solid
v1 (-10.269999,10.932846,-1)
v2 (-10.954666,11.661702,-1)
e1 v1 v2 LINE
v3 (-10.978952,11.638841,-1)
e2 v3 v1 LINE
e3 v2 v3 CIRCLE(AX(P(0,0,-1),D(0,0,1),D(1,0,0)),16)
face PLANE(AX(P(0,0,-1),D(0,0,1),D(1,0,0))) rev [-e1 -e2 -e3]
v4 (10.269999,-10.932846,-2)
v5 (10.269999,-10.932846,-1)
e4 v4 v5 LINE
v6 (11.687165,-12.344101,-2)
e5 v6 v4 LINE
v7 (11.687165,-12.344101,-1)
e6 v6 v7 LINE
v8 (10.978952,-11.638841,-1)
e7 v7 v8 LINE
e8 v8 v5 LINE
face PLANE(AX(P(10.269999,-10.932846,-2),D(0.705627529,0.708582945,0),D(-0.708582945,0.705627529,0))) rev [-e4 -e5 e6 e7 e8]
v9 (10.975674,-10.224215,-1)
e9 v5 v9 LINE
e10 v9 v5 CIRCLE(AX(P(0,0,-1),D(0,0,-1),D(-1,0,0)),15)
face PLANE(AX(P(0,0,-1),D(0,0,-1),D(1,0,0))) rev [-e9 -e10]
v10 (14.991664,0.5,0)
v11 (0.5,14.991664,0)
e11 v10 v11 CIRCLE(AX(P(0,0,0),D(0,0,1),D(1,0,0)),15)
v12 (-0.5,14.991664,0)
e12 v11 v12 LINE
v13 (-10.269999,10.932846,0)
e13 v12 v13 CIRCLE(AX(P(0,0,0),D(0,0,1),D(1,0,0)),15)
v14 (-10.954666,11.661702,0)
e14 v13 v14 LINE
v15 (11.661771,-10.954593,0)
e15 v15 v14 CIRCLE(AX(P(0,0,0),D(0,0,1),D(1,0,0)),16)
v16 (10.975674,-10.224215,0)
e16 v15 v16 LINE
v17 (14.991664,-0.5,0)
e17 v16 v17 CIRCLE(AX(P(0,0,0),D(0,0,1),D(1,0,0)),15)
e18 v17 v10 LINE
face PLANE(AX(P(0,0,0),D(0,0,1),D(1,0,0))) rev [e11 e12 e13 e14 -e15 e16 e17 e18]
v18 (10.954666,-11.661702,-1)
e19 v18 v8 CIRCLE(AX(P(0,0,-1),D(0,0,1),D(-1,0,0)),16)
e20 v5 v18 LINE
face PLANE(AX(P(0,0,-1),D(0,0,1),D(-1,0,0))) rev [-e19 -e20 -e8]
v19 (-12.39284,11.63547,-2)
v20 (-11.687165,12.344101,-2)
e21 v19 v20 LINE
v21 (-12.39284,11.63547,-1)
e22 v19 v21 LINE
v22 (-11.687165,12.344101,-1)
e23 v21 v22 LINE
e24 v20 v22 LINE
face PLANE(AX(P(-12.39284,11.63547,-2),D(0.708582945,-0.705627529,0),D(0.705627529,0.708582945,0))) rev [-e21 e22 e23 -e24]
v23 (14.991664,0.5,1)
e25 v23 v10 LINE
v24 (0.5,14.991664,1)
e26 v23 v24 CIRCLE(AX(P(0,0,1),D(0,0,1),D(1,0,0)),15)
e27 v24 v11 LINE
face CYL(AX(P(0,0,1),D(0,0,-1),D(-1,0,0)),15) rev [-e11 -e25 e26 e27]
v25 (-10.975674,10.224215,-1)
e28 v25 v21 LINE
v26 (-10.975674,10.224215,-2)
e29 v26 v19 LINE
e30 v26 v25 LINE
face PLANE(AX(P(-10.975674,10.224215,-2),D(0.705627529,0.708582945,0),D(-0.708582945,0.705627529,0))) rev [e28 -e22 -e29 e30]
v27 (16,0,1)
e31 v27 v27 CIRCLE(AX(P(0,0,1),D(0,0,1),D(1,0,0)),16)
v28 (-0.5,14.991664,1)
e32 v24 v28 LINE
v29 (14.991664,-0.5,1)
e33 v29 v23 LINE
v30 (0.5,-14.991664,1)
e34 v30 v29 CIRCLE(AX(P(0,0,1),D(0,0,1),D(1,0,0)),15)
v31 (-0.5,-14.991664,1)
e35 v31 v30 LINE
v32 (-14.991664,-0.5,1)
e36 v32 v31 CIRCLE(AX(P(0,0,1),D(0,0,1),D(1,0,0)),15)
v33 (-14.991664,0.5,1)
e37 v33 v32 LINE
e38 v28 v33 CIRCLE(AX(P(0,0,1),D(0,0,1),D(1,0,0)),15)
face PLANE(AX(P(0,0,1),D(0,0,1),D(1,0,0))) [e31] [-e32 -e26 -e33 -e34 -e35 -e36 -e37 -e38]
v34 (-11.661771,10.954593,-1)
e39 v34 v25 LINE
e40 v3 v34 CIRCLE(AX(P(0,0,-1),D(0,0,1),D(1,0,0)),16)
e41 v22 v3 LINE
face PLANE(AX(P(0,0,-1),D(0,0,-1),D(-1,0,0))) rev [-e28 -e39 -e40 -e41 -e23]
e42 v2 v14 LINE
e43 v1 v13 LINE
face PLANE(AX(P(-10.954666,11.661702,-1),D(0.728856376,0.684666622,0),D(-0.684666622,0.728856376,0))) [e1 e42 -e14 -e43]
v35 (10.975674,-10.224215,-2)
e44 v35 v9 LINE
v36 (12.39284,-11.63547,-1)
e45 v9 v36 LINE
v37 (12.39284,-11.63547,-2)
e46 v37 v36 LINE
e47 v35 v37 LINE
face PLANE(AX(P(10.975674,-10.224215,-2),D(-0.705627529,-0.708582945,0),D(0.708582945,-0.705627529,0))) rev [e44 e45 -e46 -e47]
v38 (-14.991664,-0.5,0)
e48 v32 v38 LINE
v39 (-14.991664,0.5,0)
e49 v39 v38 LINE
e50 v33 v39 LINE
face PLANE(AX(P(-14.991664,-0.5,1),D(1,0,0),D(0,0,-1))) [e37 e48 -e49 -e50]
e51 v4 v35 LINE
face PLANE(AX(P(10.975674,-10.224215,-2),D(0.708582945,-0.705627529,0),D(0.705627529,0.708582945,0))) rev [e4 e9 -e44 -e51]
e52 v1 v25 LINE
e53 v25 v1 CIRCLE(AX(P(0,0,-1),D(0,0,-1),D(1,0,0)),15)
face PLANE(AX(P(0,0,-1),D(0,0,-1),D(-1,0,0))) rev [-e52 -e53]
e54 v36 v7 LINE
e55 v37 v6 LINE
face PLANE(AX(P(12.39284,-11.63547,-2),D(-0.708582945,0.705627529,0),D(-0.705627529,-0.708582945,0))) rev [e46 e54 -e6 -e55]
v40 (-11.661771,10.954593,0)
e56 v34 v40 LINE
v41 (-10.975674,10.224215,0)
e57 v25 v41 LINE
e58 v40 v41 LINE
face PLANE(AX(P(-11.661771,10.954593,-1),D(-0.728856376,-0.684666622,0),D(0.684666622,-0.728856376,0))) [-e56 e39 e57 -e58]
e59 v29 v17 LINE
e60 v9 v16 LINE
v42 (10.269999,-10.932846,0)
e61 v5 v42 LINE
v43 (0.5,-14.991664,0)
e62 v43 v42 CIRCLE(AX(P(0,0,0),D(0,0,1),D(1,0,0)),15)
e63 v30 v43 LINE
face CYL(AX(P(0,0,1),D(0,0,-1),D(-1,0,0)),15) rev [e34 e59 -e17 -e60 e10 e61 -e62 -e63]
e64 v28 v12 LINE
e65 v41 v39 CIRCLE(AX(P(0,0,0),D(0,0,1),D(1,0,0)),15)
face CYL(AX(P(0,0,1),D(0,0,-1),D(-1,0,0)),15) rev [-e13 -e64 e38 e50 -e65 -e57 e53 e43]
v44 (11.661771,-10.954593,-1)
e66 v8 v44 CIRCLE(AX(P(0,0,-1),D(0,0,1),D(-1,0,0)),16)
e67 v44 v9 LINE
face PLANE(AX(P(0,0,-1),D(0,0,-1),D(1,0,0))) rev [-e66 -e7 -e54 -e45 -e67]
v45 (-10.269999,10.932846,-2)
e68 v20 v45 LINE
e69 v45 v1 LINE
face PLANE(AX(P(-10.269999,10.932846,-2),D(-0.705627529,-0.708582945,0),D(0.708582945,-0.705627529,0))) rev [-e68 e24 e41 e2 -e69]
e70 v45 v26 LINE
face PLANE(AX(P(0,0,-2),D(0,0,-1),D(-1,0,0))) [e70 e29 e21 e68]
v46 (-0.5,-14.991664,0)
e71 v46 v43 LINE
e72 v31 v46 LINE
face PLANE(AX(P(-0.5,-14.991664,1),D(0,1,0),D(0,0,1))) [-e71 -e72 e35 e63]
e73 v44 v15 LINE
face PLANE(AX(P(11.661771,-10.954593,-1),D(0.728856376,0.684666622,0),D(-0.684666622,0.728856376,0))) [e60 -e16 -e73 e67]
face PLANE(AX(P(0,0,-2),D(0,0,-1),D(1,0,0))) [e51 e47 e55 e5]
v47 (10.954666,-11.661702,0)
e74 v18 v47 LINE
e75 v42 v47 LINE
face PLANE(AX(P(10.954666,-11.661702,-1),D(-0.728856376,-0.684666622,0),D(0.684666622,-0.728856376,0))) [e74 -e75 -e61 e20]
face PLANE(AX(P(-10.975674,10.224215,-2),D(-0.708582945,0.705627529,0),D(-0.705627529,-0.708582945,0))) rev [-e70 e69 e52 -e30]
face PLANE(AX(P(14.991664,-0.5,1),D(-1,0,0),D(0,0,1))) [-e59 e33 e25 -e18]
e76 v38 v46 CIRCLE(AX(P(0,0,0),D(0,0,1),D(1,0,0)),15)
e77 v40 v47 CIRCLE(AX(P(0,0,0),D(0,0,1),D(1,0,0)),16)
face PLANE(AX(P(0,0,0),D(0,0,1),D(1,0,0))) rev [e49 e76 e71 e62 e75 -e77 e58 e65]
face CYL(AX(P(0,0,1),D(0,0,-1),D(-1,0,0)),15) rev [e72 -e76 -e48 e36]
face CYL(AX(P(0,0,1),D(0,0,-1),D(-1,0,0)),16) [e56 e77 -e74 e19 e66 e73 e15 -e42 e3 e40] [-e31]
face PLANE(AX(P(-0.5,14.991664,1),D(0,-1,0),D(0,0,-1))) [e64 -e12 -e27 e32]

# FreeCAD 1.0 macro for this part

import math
import FreeCAD as App
import Part
import Sketcher

V = App.Vector
Q = App.Units.Quantity


def add_polygon(sketch, points):
    """Adds a closed chain of lines whose ends are joined by coincident constraints."""
    first, n = sketch.GeometryCount, len(points)
    for a, b in zip(points, points[1:] + points[:1]):
        sketch.addGeometry(Part.LineSegment(App.Vector(*a, 0), App.Vector(*b, 0)), False)
    for i in range(n):
        sketch.addConstraint(Sketcher.Constraint("Coincident", first + i, 2, first + (i + 1) % n, 1))

doc = App.newDocument("Part")
params = doc.addObject("Spreadsheet::Sheet", "Params")
for row, (alias, value) in enumerate([
    ("sketch1_diameter", "32 mm"),
    ("sketch1_radius", "15 mm"),
    ("sketch1_width", "1 mm"),
    ("pad1_length", "1 mm"),
    ("sketch2_radius", "14.999999 mm"),
    ("sketch2_radius2", "15.999999 mm"),
    ("pad2_length", "1 mm"),
    ("sketch3_length", "2 mm"),
    ("pad3_length", "1 mm"),
], start=1):
    params.set(f"A{row}", alias)
    params.set(f"B{row}", "=" + value)
    params.setAlias(f"B{row}", alias)

body = doc.addObject("PartDesign::Body", "Body")

# Sketch on XY plane
sketch1 = body.newObject("Sketcher::SketchObject", "Sketch")
sketch1.AttachmentSupport = (doc.getObject("XY_Plane"), [""])
sketch1.MapMode = "FlatFace"
sketch1.addGeometry([
    Part.Circle(V(0, 0, 0), V(0, 0, 1), 16),  # 0
    Part.LineSegment(V(0.5, -15, 0), V(-0.5, -15, 0)),  # 1
    Part.ArcOfCircle(Part.Circle(V(0, 0, 0), V(0, 0, 1), 15), math.radians(-178), math.radians(-92)),  # 2
    Part.LineSegment(V(-15, -0.5, 0), V(-15, 0.5, 0)),  # 3
    Part.ArcOfCircle(Part.Circle(V(0, 0, 0), V(0, 0, 1), 15), math.radians(92), math.radians(178)),  # 4
    Part.LineSegment(V(-0.5, 15, 0), V(0.5, 15, 0)),  # 5
    Part.ArcOfCircle(Part.Circle(V(0, 0, 0), V(0, 0, 1), 15), math.radians(2), math.radians(88)),  # 6
    Part.LineSegment(V(15, 0.5, 0), V(15, -0.5, 0)),  # 7
    Part.ArcOfCircle(Part.Circle(V(0, 0, 0), V(0, 0, 1), 15), math.radians(-88), math.radians(-2)),  # 8
], False)
sketch1.addConstraint([
    Sketcher.Constraint("Coincident", 1, 2, 2, 2),
    Sketcher.Constraint("Coincident", 2, 1, 3, 1),
    Sketcher.Constraint("Coincident", 3, 2, 4, 2),
    Sketcher.Constraint("Coincident", 4, 1, 5, 1),
    Sketcher.Constraint("Coincident", 5, 2, 6, 2),
    Sketcher.Constraint("Coincident", 6, 1, 7, 1),
    Sketcher.Constraint("Coincident", 7, 2, 8, 2),
    Sketcher.Constraint("Coincident", 8, 1, 1, 1),
    Sketcher.Constraint("Horizontal", 1),
    Sketcher.Constraint("Vertical", 3),
    Sketcher.Constraint("Horizontal", 5),
    Sketcher.Constraint("Vertical", 7),
    Sketcher.Constraint("Coincident", 0, 3, -1, 1),
    Sketcher.Constraint("Coincident", 2, 3, -1, 1),
    Sketcher.Constraint("Coincident", 4, 3, -1, 1),
    Sketcher.Constraint("Coincident", 6, 3, -1, 1),
    Sketcher.Constraint("Coincident", 8, 3, -1, 1),
    Sketcher.Constraint("Equal", 2, 4),
    Sketcher.Constraint("Equal", 4, 6),
    Sketcher.Constraint("Equal", 6, 8),
    Sketcher.Constraint("Horizontal", 3, 2, 6, 1),
    Sketcher.Constraint("Vertical", 1, 2, 4, 1),
    Sketcher.Constraint("Equal", 5, 3),
    Sketcher.Constraint("Diameter", 0, Q("32 mm")),
    Sketcher.Constraint("Radius", 2, Q("15 mm")),
    Sketcher.Constraint("DistanceX", 1, 2, 1, 1, Q("1 mm")),
])
sketch1.setExpression("Constraints[23]", "Params.sketch1_diameter")
sketch1.setExpression("Constraints[24]", "Params.sketch1_radius")
sketch1.setExpression("Constraints[25]", "Params.sketch1_width")
pad1 = body.newObject("PartDesign::Pad", "Pad")
pad1.Profile = sketch1
pad1.setExpression("Length", "Params.pad1_length")

# Sketch on XY plane
sketch2 = body.newObject("Sketcher::SketchObject", "Sketch001")
sketch2.AttachmentSupport = (doc.getObject("XY_Plane"), [""])
sketch2.MapMode = "FlatFace"
sketch2.addGeometry([
    Part.LineSegment(V(-11.7, 11, 0), V(-11, 10.2, 0)),
    Part.ArcOfCircle(Part.Circle(V(0, 0, 0), V(0, 0, 1), 15), math.radians(133.21), math.radians(137.03)),
    Part.LineSegment(V(-10.3, 10.9, 0), V(-11, 11.7, 0)),
    Part.ArcOfCircle(Part.Circle(V(0, 0, 0), V(0, 0, 1), 16), math.radians(133.21), math.radians(136.79)),
], False)
sketch2.addConstraint([
    Sketcher.Constraint("Coincident", 0, 2, 1, 2),
    Sketcher.Constraint("Coincident", 1, 1, 2, 1),
    Sketcher.Constraint("Coincident", 2, 2, 3, 1),
    Sketcher.Constraint("Coincident", 3, 2, 0, 1),
    Sketcher.Constraint("Coincident", 1, 3, -1, 1),
    Sketcher.Constraint("Coincident", 3, 3, -1, 1),
    Sketcher.Constraint("Parallel", 0, 2),
    Sketcher.Constraint("Radius", 1, Q("14.999999 mm")),
    Sketcher.Constraint("Radius", 3, Q("15.999999 mm")),
    Sketcher.Constraint("DistanceX", 1, 1, -1, 1, Q("10.269999 mm")),
    Sketcher.Constraint("DistanceY", 1, 3, 2, 2, Q("11.661701 mm")),
    Sketcher.Constraint("DistanceX", 3, 2, -1, 1, Q("11.661771 mm")),
])
sketch2.setExpression("Constraints[7]", "Params.sketch2_radius")
sketch2.setExpression("Constraints[8]", "Params.sketch2_radius2")
pad2 = body.newObject("PartDesign::Pad", "Pad001")
pad2.Profile = sketch2
pad2.setExpression("Length", "Params.pad2_length")
pad2.Reversed = True

# Sketch on XY plane
sketch3 = body.newObject("Sketcher::SketchObject", "Sketch002")
sketch3.AttachmentSupport = (doc.getObject("XY_Plane"), [""])
sketch3.MapMode = "FlatFace"
sketch3.AttachmentOffset = App.Placement(V(0, 0, -1), App.Rotation())
add_polygon(sketch3, [(-10.3, 10.9), (-11, 10.2), (-12.4, 11.6), (-11.7, 12.3)])  # lines 0-3
sketch3.addConstraint([
    Sketcher.Constraint("Perpendicular", 0, 1),
    Sketcher.Constraint("Perpendicular", 1, 2),
    Sketcher.Constraint("Perpendicular", 2, 3),
    Sketcher.Constraint("Distance", 1, Q("2 mm")),
    Sketcher.Constraint("DistanceX", 3, 2, -1, 1, Q("10.269999 mm")),
    Sketcher.Constraint("DistanceY", -1, 1, 2, 2, Q("12.344101 mm")),
    Sketcher.Constraint("DistanceX", 1, 2, -1, 1, Q("12.39284 mm")),
    Sketcher.Constraint("DistanceX", 2, 2, 0, 2, Q("0.711491 mm")),
])
sketch3.setExpression("Constraints[7]", "Params.sketch3_length")
pad3 = body.newObject("PartDesign::Pad", "Pad002")
pad3.Profile = sketch3
pad3.setExpression("Length", "Params.pad3_length")
pad3.Reversed = True
doc.recompute()

polarpattern = body.newObject("PartDesign::PolarPattern", "PolarPattern")
polarpattern.Originals = [pad2, pad3]
polarpattern.Axis = (doc.getObject("Z_Axis"), [""])
polarpattern.Angle = 360
polarpattern.Occurrences = 2
body.Tip = polarpattern

doc.recompute()
